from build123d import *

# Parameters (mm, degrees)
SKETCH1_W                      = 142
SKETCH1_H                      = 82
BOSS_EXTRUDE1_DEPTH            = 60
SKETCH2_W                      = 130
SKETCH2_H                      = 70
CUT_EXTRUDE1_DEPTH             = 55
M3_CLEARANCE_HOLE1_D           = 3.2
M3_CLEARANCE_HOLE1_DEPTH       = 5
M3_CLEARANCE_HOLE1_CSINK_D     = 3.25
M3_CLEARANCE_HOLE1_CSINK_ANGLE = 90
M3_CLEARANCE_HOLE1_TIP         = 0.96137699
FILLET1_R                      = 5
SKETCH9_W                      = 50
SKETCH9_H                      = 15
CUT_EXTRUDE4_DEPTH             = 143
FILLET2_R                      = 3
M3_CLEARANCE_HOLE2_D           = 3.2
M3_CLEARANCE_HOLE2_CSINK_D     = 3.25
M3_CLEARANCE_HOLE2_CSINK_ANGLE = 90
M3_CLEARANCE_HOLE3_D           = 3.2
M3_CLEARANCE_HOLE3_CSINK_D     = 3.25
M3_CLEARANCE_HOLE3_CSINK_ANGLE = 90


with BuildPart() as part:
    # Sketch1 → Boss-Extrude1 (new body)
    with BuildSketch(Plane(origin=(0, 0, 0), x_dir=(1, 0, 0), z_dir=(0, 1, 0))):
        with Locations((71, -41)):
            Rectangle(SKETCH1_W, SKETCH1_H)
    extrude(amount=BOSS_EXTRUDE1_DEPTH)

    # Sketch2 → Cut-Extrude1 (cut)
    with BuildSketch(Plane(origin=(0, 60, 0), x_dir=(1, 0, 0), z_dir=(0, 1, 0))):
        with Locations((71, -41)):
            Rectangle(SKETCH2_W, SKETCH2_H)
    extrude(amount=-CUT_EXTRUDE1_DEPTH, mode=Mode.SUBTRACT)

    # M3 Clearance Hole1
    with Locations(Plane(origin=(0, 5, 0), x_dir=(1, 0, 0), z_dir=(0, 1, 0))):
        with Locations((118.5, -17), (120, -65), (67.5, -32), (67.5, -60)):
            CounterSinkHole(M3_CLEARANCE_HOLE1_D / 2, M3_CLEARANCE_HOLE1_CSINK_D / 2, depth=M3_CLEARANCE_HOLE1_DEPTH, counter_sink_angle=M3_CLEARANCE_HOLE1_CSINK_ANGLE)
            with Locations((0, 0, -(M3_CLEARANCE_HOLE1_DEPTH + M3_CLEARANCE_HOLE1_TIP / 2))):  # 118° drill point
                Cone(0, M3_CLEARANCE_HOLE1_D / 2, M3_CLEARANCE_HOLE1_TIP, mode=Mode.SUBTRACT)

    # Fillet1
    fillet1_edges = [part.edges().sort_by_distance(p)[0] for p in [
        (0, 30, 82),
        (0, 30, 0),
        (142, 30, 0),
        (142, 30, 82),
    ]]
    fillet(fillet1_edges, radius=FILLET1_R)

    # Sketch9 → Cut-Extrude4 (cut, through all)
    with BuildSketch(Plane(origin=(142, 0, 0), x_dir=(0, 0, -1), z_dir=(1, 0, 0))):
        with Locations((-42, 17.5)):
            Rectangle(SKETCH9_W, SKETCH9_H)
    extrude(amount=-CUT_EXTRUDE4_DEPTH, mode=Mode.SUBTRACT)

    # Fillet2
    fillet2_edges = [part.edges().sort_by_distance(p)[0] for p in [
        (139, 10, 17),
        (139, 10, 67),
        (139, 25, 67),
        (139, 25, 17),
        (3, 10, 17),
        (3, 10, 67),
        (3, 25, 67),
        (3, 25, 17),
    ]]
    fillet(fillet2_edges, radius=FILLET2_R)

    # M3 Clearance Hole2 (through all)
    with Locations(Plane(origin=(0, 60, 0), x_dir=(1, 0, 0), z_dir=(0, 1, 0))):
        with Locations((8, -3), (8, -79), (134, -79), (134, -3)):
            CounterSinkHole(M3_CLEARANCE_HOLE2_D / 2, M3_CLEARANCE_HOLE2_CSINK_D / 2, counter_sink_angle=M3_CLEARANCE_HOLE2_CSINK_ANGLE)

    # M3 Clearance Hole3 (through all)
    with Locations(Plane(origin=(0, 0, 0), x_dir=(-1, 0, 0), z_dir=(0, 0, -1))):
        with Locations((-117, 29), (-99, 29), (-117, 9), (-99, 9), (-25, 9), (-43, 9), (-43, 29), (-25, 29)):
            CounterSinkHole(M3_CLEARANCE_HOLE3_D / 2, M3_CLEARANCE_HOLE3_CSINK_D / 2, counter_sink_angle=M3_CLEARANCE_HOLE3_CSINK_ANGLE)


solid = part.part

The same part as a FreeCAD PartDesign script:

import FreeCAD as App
import Part
import Sketcher
from FreeCAD import Vector
Q = App.Units.Quantity


def edges_at(feature, points):
    """Names of the edges that pass closest to the given points."""
    edges = feature.Shape.Edges
    near = lambda p: min(range(len(edges)), key=lambda i: edges[i].distToShape(Part.Vertex(*p))[0])
    return sorted({f"Edge{near(p) + 1}" for p in points})


def add_polygon(sketch, points):
    """Adds a closed chain of lines whose ends are joined by coincident constraints."""
    first, n = sketch.GeometryCount, len(points)
    for a, b in zip(points, points[1:] + points[:1]):
        sketch.addGeometry(Part.LineSegment(App.Vector(*a, 0), App.Vector(*b, 0)), False)
    for i in range(n):
        sketch.addConstraint(Sketcher.Constraint("Coincident", first + i, 2, first + (i + 1) % n, 1))

doc = App.newDocument("Part")
params = doc.addObject("Spreadsheet::Sheet", "Params")
for row, (alias, value) in enumerate([
    ("sketch1_width", "142 mm"),
    ("sketch1_height", "82 mm"),
    ("pad1_length", "60 mm"),
    ("sketch2_width", "130 mm"),
    ("sketch2_height", "70 mm"),
    ("pocket1_length", "55 mm"),
    ("sketch3_diameter", "3.2 mm"),
    ("hole_diameter", "3.2 mm"),
    ("hole_depth", "5 mm"),
    ("hole_csink_diameter", "3.25 mm"),
    ("fillet_radius", "5 mm"),
    ("sketch4_width", "15 mm"),
    ("sketch4_height", "50 mm"),
    ("fillet2_radius", "3 mm"),
    ("sketch5_diameter", "3.2 mm"),
    ("hole2_diameter", "3.2 mm"),
    ("hole2_csink_diameter", "3.25 mm"),
    ("sketch6_diameter", "3.2 mm"),
    ("hole3_diameter", "3.2 mm"),
    ("hole3_csink_diameter", "3.25 mm"),
], start=1):
    params.set(f"A{row}", alias)
    params.set(f"B{row}", "=" + value)
    params.setAlias(f"B{row}", alias)

body = doc.addObject("PartDesign::Body", "Body")

sketch1 = body.newObject("Sketcher::SketchObject", "Sketch")
sketch1.AttachmentSupport = (doc.getObject("XZ_Plane"), [""])
sketch1.MapMode = "FlatFace"
add_polygon(sketch1, [(0, 0), (0, 82), (142, 82), (142, 0)])
sketch1.addConstraint([
    Sketcher.Constraint("Vertical", 0),
    Sketcher.Constraint("Horizontal", 1),
    Sketcher.Constraint("Vertical", 2),
    Sketcher.Constraint("Horizontal", 3),
    Sketcher.Constraint("Coincident", 3, 2, -1, 1),
    Sketcher.Constraint("DistanceX", 1, 1, 1, 2, Q("142 mm")),
    Sketcher.Constraint("DistanceY", 0, 1, 0, 2, Q("82 mm")),
])
sketch1.setExpression("Constraints[9]", "Params.sketch1_width")
sketch1.setExpression("Constraints[10]", "Params.sketch1_height")
pad1 = body.newObject("PartDesign::Pad", "Pad")
pad1.Profile = sketch1
pad1.setExpression("Length", "Params.pad1_length")
pad1.Reversed = True

sketch2 = body.newObject("Sketcher::SketchObject", "Sketch001")
sketch2.AttachmentSupport = (doc.getObject("XZ_Plane"), [""])
sketch2.MapMode = "FlatFace"
sketch2.AttachmentOffset = App.Placement(Vector(0, 0, -60), App.Rotation())
add_polygon(sketch2, [(6, 6), (6, 76), (136, 76), (136, 6)])
sketch2.addConstraint([
    Sketcher.Constraint("Vertical", 0),
    Sketcher.Constraint("Horizontal", 1),
    Sketcher.Constraint("Vertical", 2),
    Sketcher.Constraint("Horizontal", 3),
    Sketcher.Constraint("DistanceX", 1, 1, 1, 2, Q("130 mm")),
    Sketcher.Constraint("DistanceY", 0, 1, 0, 2, Q("70 mm")),
    Sketcher.Constraint("DistanceX", -1, 1, 0, 2, Q("6 mm")),
    Sketcher.Constraint("DistanceY", -1, 1, 0, 2, Q("76 mm")),
])
sketch2.setExpression("Constraints[8]", "Params.sketch2_width")
sketch2.setExpression("Constraints[9]", "Params.sketch2_height")
pocket1 = body.newObject("PartDesign::Pocket", "Pocket")
pocket1.Profile = sketch2
pocket1.setExpression("Length", "Params.pocket1_length")
pocket1.Reversed = True

sketch3 = body.newObject("Sketcher::SketchObject", "Sketch002")
sketch3.AttachmentSupport = (doc.getObject("XZ_Plane"), [""])
sketch3.MapMode = "FlatFace"
sketch3.AttachmentOffset = App.Placement(Vector(0, 0, -5), App.Rotation())
sketch3.addGeometry([
    Part.Circle(Vector(118.5, 17, 0), Vector(0, 0, 1), 1.6),
    Part.Circle(Vector(120, 65, 0), Vector(0, 0, 1), 1.6),
    Part.Circle(Vector(67.5, 32, 0), Vector(0, 0, 1), 1.6),
    Part.Circle(Vector(67.5, 60, 0), Vector(0, 0, 1), 1.6),
], False)
sketch3.addConstraint([
    Sketcher.Constraint("Equal", 0, 1),
    Sketcher.Constraint("Equal", 1, 2),
    Sketcher.Constraint("Equal", 2, 3),
    Sketcher.Constraint("Vertical", 2, 3, 3, 3),
    Sketcher.Constraint("Diameter", 0, Q("3.2 mm")),
    Sketcher.Constraint("DistanceY", -1, 1, 0, 3, Q("17 mm")),
    Sketcher.Constraint("DistanceX", -1, 1, 1, 3, Q("120 mm")),
    Sketcher.Constraint("DistanceY", -1, 1, 1, 3, Q("65 mm")),
    Sketcher.Constraint("DistanceY", -1, 1, 2, 3, Q("32 mm")),
    Sketcher.Constraint("DistanceY", -1, 1, 3, 3, Q("60 mm")),
    Sketcher.Constraint("DistanceX", 2, 3, 0, 3, Q("51 mm")),
    Sketcher.Constraint("DistanceX", -1, 1, 0, 3, Q("118.5 mm")),
])
sketch3.setExpression("Constraints[4]", "Params.sketch3_diameter")
doc.recompute()
hole = body.newObject("PartDesign::Hole", "Hole")
hole.Profile = sketch3
hole.ThreadType = "None"
hole.setExpression("Diameter", "Params.hole_diameter")
hole.DepthType = "Dimension"
hole.setExpression("Depth", "Params.hole_depth")
hole.DrillPoint = "Angled"
hole.DrillPointAngle = 118
hole.HoleCutType = "Countersink"
hole.setExpression("HoleCutDiameter", "Params.hole_csink_diameter")
hole.HoleCutCountersinkAngle = 90
hole.Reversed = True
doc.recompute()

fillet = body.newObject("PartDesign::Fillet", "Fillet")
fillet.Base = (hole, edges_at(hole, [
    (0, 30, 82),
    (0, 30, 0),
    (142, 30, 0),
    (142, 30, 82),
]))
fillet.setExpression("Radius", "Params.fillet_radius")

sketch4 = body.newObject("Sketcher::SketchObject", "Sketch003")
sketch4.AttachmentSupport = (doc.getObject("YZ_Plane"), [""])
sketch4.MapMode = "FlatFace"
sketch4.AttachmentOffset = App.Placement(Vector(0, 0, 142), App.Rotation())
add_polygon(sketch4, [(25, 67), (10, 67), (10, 17), (25, 17)])
sketch4.addConstraint([
    Sketcher.Constraint("Horizontal", 0),
    Sketcher.Constraint("Vertical", 1),
    Sketcher.Constraint("Horizontal", 2),
    Sketcher.Constraint("Vertical", 3),
    Sketcher.Constraint("DistanceX", 0, 2, 0, 1, Q("15 mm")),
    Sketcher.Constraint("DistanceY", 1, 2, 1, 1, Q("50 mm")),
    Sketcher.Constraint("DistanceX", -1, 1, 0, 2, Q("10 mm")),
    Sketcher.Constraint("DistanceY", -1, 1, 0, 2, Q("67 mm")),
])
sketch4.setExpression("Constraints[8]", "Params.sketch4_width")
sketch4.setExpression("Constraints[9]", "Params.sketch4_height")
pocket2 = body.newObject("PartDesign::Pocket", "Pocket001")
pocket2.Profile = sketch4
pocket2.Type = "ThroughAll"
doc.recompute()

fillet2 = body.newObject("PartDesign::Fillet", "Fillet001")
fillet2.Base = (pocket2, edges_at(pocket2, [
    (139, 10, 17),
    (139, 10, 67),
    (139, 25, 67),
    (139, 25, 17),
    (3, 10, 17),
    (3, 10, 67),
    (3, 25, 67),
    (3, 25, 17),
]))
fillet2.setExpression("Radius", "Params.fillet2_radius")

sketch5 = body.newObject("Sketcher::SketchObject", "Sketch004")
sketch5.AttachmentSupport = (doc.getObject("XZ_Plane"), [""])
sketch5.MapMode = "FlatFace"
sketch5.AttachmentOffset = App.Placement(Vector(0, 0, -60), App.Rotation())
sketch5.addGeometry([
    Part.Circle(Vector(8, 3, 0), Vector(0, 0, 1), 1.6),
    Part.Circle(Vector(8, 79, 0), Vector(0, 0, 1), 1.6),
    Part.Circle(Vector(134, 79, 0), Vector(0, 0, 1), 1.6),
    Part.Circle(Vector(134, 3, 0), Vector(0, 0, 1), 1.6),
], False)
sketch5.addConstraint([
    Sketcher.Constraint("Equal", 0, 1),
    Sketcher.Constraint("Equal", 1, 2),
    Sketcher.Constraint("Equal", 2, 3),
    Sketcher.Constraint("Horizontal", 1, 3, 2, 3),
    Sketcher.Constraint("Horizontal", 0, 3, 3, 3),
    Sketcher.Constraint("Vertical", 0, 3, 1, 3),
    Sketcher.Constraint("Vertical", 2, 3, 3, 3),
    Sketcher.Constraint("Diameter", 0, Q("3.2 mm")),
    Sketcher.Constraint("DistanceX", -1, 1, 0, 3, Q("8 mm")),
    Sketcher.Constraint("DistanceY", -1, 1, 0, 3, Q("3 mm")),
    Sketcher.Constraint("DistanceY", -1, 1, 1, 3, Q("79 mm")),
    Sketcher.Constraint("DistanceX", -1, 1, 2, 3, Q("134 mm")),
])
sketch5.setExpression("Constraints[7]", "Params.sketch5_diameter")
doc.recompute()
hole2 = body.newObject("PartDesign::Hole", "Hole001")
hole2.Profile = sketch5
hole2.ThreadType = "None"
hole2.setExpression("Diameter", "Params.hole2_diameter")
hole2.DepthType = "ThroughAll"
hole2.HoleCutType = "Countersink"
hole2.setExpression("HoleCutDiameter", "Params.hole2_csink_diameter")
hole2.HoleCutCountersinkAngle = 90
hole2.Reversed = True

sketch6 = body.newObject("Sketcher::SketchObject", "Sketch005")
sketch6.AttachmentSupport = (doc.getObject("XY_Plane"), [""])
sketch6.MapMode = "FlatFace"
sketch6.addGeometry([
    Part.Circle(Vector(117, 29, 0), Vector(0, 0, 1), 1.6),
    Part.Circle(Vector(99, 29, 0), Vector(0, 0, 1), 1.6),
    Part.Circle(Vector(117, 9, 0), Vector(0, 0, 1), 1.6),
    Part.Circle(Vector(99, 9, 0), Vector(0, 0, 1), 1.6),
    Part.Circle(Vector(25, 9, 0), Vector(0, 0, 1), 1.6),
    Part.Circle(Vector(43, 9, 0), Vector(0, 0, 1), 1.6),
    Part.Circle(Vector(43, 29, 0), Vector(0, 0, 1), 1.6),
    Part.Circle(Vector(25, 29, 0), Vector(0, 0, 1), 1.6),
], False)
sketch6.addConstraint([
    Sketcher.Constraint("Equal", 0, 1),
    Sketcher.Constraint("Equal", 1, 2),
    Sketcher.Constraint("Equal", 2, 3),
    Sketcher.Constraint("Equal", 3, 4),
    Sketcher.Constraint("Equal", 4, 5),
    Sketcher.Constraint("Equal", 5, 6),
    Sketcher.Constraint("Equal", 6, 7),
    Sketcher.Constraint("Horizontal", 0, 3, 1, 3),
    Sketcher.Constraint("Horizontal", 2, 3, 3, 3),
    Sketcher.Constraint("Horizontal", 3, 3, 4, 3),
    Sketcher.Constraint("Horizontal", 4, 3, 5, 3),
    Sketcher.Constraint("Horizontal", 1, 3, 6, 3),
    Sketcher.Constraint("Horizontal", 6, 3, 7, 3),
    Sketcher.Constraint("Vertical", 0, 3, 2, 3),
    Sketcher.Constraint("Vertical", 1, 3, 3, 3),
    Sketcher.Constraint("Vertical", 5, 3, 6, 3),
    Sketcher.Constraint("Vertical", 4, 3, 7, 3),
    Sketcher.Constraint("Diameter", 0, Q("3.2 mm")),
    Sketcher.Constraint("DistanceX", -1, 1, 0, 3, Q("117 mm")),
    Sketcher.Constraint("DistanceY", -1, 1, 0, 3, Q("29 mm")),
    Sketcher.Constraint("DistanceX", -1, 1, 1, 3, Q("99 mm")),
    Sketcher.Constraint("DistanceY", -1, 1, 2, 3, Q("9 mm")),
    Sketcher.Constraint("DistanceX", -1, 1, 4, 3, Q("25 mm")),
    Sketcher.Constraint("DistanceX", -1, 1, 5, 3, Q("43 mm")),
])
sketch6.setExpression("Constraints[17]", "Params.sketch6_diameter")
doc.recompute()
hole3 = body.newObject("PartDesign::Hole", "Hole002")
hole3.Profile = sketch6
hole3.ThreadType = "None"
hole3.setExpression("Diameter", "Params.hole3_diameter")
hole3.DepthType = "ThroughAll"
hole3.HoleCutType = "Countersink"
hole3.setExpression("HoleCutDiameter", "Params.hole3_csink_diameter")
hole3.HoleCutCountersinkAngle = 90
hole3.Reversed = True

doc.recompute()
